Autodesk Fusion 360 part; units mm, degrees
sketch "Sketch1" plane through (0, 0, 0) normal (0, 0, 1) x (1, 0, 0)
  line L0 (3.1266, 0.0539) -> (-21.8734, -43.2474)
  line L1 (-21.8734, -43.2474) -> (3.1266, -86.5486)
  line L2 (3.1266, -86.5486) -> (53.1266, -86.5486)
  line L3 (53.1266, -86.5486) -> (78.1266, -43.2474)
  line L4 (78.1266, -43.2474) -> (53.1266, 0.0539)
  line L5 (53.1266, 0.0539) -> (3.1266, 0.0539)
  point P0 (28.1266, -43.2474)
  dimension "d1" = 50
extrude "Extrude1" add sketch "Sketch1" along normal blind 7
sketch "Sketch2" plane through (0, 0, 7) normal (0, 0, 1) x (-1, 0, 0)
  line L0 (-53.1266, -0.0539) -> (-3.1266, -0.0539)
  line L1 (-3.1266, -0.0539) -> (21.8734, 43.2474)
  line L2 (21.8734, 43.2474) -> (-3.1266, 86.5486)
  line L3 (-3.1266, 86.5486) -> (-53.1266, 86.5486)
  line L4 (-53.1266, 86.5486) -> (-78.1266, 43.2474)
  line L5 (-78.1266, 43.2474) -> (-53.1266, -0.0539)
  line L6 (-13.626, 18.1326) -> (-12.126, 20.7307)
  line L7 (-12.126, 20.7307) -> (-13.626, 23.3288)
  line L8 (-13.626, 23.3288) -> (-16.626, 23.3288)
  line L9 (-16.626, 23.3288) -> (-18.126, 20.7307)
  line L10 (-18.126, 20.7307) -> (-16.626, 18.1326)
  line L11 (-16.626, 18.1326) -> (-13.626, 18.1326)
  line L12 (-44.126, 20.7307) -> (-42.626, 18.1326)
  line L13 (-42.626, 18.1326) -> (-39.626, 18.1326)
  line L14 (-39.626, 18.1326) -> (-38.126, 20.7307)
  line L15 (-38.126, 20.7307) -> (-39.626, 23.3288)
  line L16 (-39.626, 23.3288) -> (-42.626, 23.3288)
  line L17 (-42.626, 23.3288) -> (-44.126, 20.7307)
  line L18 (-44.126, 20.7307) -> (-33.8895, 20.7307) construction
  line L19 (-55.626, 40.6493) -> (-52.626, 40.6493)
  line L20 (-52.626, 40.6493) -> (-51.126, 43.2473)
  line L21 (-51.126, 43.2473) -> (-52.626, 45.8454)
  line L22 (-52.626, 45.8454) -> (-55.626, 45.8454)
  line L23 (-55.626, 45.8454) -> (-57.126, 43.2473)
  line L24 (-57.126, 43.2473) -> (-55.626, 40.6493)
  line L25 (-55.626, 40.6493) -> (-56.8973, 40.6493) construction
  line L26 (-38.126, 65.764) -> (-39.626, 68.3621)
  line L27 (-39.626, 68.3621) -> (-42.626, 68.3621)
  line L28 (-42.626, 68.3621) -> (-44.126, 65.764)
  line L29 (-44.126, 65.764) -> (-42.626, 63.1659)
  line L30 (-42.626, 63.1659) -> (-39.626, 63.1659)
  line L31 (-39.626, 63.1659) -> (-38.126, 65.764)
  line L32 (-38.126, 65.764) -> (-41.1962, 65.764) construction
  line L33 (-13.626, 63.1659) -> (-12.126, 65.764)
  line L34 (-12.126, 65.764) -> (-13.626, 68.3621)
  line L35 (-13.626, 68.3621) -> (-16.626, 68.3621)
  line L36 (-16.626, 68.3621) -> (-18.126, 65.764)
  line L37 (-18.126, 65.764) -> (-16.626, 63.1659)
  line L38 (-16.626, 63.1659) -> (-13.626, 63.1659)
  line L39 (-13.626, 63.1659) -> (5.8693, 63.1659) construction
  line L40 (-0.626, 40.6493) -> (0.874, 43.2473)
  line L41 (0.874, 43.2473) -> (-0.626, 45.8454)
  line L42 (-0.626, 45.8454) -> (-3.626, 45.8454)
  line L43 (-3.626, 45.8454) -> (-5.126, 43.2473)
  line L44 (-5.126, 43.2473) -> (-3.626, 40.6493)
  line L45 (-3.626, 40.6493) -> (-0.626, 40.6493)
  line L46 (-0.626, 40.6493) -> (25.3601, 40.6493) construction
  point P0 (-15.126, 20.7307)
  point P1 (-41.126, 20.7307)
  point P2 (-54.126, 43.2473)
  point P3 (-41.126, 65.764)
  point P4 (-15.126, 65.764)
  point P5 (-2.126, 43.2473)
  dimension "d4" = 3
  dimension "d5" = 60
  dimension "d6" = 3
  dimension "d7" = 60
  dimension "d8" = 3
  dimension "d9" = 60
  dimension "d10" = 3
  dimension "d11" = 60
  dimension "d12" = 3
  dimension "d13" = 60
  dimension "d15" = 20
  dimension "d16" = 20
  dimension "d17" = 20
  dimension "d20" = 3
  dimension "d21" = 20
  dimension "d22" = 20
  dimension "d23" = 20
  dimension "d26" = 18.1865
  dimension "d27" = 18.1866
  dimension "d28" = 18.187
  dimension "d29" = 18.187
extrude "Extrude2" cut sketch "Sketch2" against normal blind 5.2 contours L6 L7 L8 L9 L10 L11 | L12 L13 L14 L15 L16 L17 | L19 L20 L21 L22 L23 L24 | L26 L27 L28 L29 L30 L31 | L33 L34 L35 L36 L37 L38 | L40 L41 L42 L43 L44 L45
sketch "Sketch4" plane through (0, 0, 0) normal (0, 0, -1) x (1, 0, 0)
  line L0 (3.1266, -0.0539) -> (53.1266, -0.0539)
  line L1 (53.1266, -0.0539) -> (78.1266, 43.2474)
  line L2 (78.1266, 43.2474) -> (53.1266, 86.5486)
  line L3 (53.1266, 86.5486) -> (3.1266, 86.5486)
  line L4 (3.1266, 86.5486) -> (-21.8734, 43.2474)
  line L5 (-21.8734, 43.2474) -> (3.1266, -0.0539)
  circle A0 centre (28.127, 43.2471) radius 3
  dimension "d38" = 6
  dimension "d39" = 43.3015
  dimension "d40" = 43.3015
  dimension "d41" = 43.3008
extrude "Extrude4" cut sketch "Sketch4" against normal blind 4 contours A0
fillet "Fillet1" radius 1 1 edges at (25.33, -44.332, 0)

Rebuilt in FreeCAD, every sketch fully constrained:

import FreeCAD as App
import Part
import Sketcher

V = App.Vector
Q = App.Units.Quantity


def edges_at(feature, points):
    """Names of the edges that pass closest to the given points."""
    edges = feature.Shape.Edges
    near = lambda p: min(range(len(edges)), key=lambda i: edges[i].distToShape(Part.Vertex(*p))[0])
    return sorted({f"Edge{near(p) + 1}" for p in points})

doc = App.newDocument("Part")
params = doc.addObject("Spreadsheet::Sheet", "Params")
for row, (alias, value) in enumerate([
    ("sketch1_width", "50 mm"),
    ("sketch1_length", "50 mm"),
    ("pad1_length", "7 mm"),
    ("sketch2_width", "3 mm"),
    ("sketch2_length", "3 mm"),
    ("pocket1_length", "5.2 mm"),
    ("sketch3_diameter", "6 mm"),
    ("pocket2_length", "4 mm"),
    ("fillet_radius", "1 mm"),
], start=1):
    params.set(f"A{row}", alias)
    params.set(f"B{row}", "=" + value)
    params.setAlias(f"B{row}", alias)

body = doc.addObject("PartDesign::Body", "Body")

# Sketch on XY plane
sketch1 = doc.addObject("Sketcher::SketchObject", "Sketch")
body.addObject(sketch1)
sketch1.AttachmentSupport = (doc.XY_Plane, [""])
sketch1.MapMode = "FlatFace"
sketch1.addGeometry(Part.LineSegment(V(53, 0, 0), V(3, 0, 0)), False)
sketch1.addGeometry(Part.LineSegment(V(3, 0, 0), V(-22, -43, 0)), False)
sketch1.addGeometry(Part.LineSegment(V(-22, -43, 0), V(3, -87, 0)), False)
sketch1.addGeometry(Part.LineSegment(V(3, -87, 0), V(53, -87, 0)), False)
sketch1.addGeometry(Part.LineSegment(V(53, -87, 0), V(78, -43, 0)), False)
sketch1.addGeometry(Part.LineSegment(V(78, -43, 0), V(53, 0, 0)), False)
sketch1.addConstraint(Sketcher.Constraint("Coincident", 0, 2, 1, 1))
sketch1.addConstraint(Sketcher.Constraint("Coincident", 1, 2, 2, 1))
sketch1.addConstraint(Sketcher.Constraint("Coincident", 2, 2, 3, 1))
sketch1.addConstraint(Sketcher.Constraint("Coincident", 3, 2, 4, 1))
sketch1.addConstraint(Sketcher.Constraint("Coincident", 4, 2, 5, 1))
sketch1.addConstraint(Sketcher.Constraint("Coincident", 5, 2, 0, 1))
sketch1.addConstraint(Sketcher.Constraint("Horizontal", 0))
sketch1.addConstraint(Sketcher.Constraint("Horizontal", 3))
sketch1.addConstraint(Sketcher.Constraint("Parallel", 1, 4))
sketch1.addConstraint(Sketcher.Constraint("Parallel", 2, 5))
sketch1.addConstraint(Sketcher.Constraint("Horizontal", 1, 2, 4, 2))
sketch1.addConstraint(Sketcher.Constraint("Vertical", 0, 2, 2, 2))
sketch1.addConstraint(Sketcher.Constraint("Vertical", 3, 2, 5, 2))
sketch1.addConstraint(Sketcher.Constraint("DistanceX", 0, 2, 0, 1, Q("50 mm")))
sketch1.addConstraint(Sketcher.Constraint("Distance", 1, Q("50 mm")))
sketch1.addConstraint(Sketcher.Constraint("Angle", 1, Q("-120 deg")))
sketch1.addConstraint(Sketcher.Constraint("DistanceY", -1, 1, 0, 2, Q("0.054 mm")))
sketch1.addConstraint(Sketcher.Constraint("DistanceX", -1, 1, 0, 2, Q("3.1266 mm")))
sketch1.setExpression("Constraints[13]", "Params.sketch1_width")
sketch1.setExpression("Constraints[14]", "Params.sketch1_length")
pad1 = doc.addObject("PartDesign::Pad", "Pad")
body.addObject(pad1)
pad1.Profile = sketch1
pad1.setExpression("Length", "Params.pad1_length")

# Sketch on XY plane
sketch2 = doc.addObject("Sketcher::SketchObject", "Sketch001")
body.addObject(sketch2)
sketch2.AttachmentSupport = (doc.XY_Plane, [""])
sketch2.MapMode = "FlatFace"
sketch2.AttachmentOffset = App.Placement(V(0, 0, 7), App.Rotation())
sketch2.addGeometry(Part.LineSegment(V(16.6, -18.1, 0), V(13.6, -18.1, 0)), False)
sketch2.addGeometry(Part.LineSegment(V(13.6, -18.1, 0), V(12.1, -20.7, 0)), False)
sketch2.addGeometry(Part.LineSegment(V(12.1, -20.7, 0), V(13.6, -23.3, 0)), False)
sketch2.addGeometry(Part.LineSegment(V(13.6, -23.3, 0), V(16.6, -23.3, 0)), False)
sketch2.addGeometry(Part.LineSegment(V(16.6, -23.3, 0), V(18.1, -20.7, 0)), False)
sketch2.addGeometry(Part.LineSegment(V(18.1, -20.7, 0), V(16.6, -18.1, 0)), False)
sketch2.addGeometry(Part.LineSegment(V(42.6, -23.3, 0), V(44.1, -20.7, 0)), False)
sketch2.addGeometry(Part.LineSegment(V(44.1, -20.7, 0), V(42.6, -18.1, 0)), False)
sketch2.addGeometry(Part.LineSegment(V(42.6, -18.1, 0), V(39.6, -18.1, 0)), False)
sketch2.addGeometry(Part.LineSegment(V(39.6, -18.1, 0), V(38.1, -20.7, 0)), False)
sketch2.addGeometry(Part.LineSegment(V(38.1, -20.7, 0), V(39.6, -23.3, 0)), False)
sketch2.addGeometry(Part.LineSegment(V(39.6, -23.3, 0), V(42.6, -23.3, 0)), False)
sketch2.addGeometry(Part.LineSegment(V(57.1, -43.2, 0), V(55.6, -40.6, 0)), False)
sketch2.addGeometry(Part.LineSegment(V(55.6, -40.6, 0), V(52.6, -40.6, 0)), False)
sketch2.addGeometry(Part.LineSegment(V(52.6, -40.6, 0), V(51.1, -43.2, 0)), False)
sketch2.addGeometry(Part.LineSegment(V(51.1, -43.2, 0), V(52.6, -45.8, 0)), False)
sketch2.addGeometry(Part.LineSegment(V(52.6, -45.8, 0), V(55.6, -45.8, 0)), False)
sketch2.addGeometry(Part.LineSegment(V(55.6, -45.8, 0), V(57.1, -43.2, 0)), False)
sketch2.addGeometry(Part.LineSegment(V(39.6, -63.2, 0), V(38.1, -65.8, 0)), False)
sketch2.addGeometry(Part.LineSegment(V(38.1, -65.8, 0), V(39.6, -68.4, 0)), False)
sketch2.addGeometry(Part.LineSegment(V(39.6, -68.4, 0), V(42.6, -68.4, 0)), False)
sketch2.addGeometry(Part.LineSegment(V(42.6, -68.4, 0), V(44.1, -65.8, 0)), False)
sketch2.addGeometry(Part.LineSegment(V(44.1, -65.8, 0), V(42.6, -63.2, 0)), False)
sketch2.addGeometry(Part.LineSegment(V(42.6, -63.2, 0), V(39.6, -63.2, 0)), False)
sketch2.addGeometry(Part.LineSegment(V(16.6, -63.2, 0), V(13.6, -63.2, 0)), False)
sketch2.addGeometry(Part.LineSegment(V(13.6, -63.2, 0), V(12.1, -65.8, 0)), False)
sketch2.addGeometry(Part.LineSegment(V(12.1, -65.8, 0), V(13.6, -68.4, 0)), False)
sketch2.addGeometry(Part.LineSegment(V(13.6, -68.4, 0), V(16.6, -68.4, 0)), False)
sketch2.addGeometry(Part.LineSegment(V(16.6, -68.4, 0), V(18.1, -65.8, 0)), False)
sketch2.addGeometry(Part.LineSegment(V(18.1, -65.8, 0), V(16.6, -63.2, 0)), False)
sketch2.addGeometry(Part.LineSegment(V(3.6, -40.6, 0), V(0.6, -40.6, 0)), False)
sketch2.addGeometry(Part.LineSegment(V(0.6, -40.6, 0), V(-0.9, -43.2, 0)), False)
sketch2.addGeometry(Part.LineSegment(V(-0.9, -43.2, 0), V(0.6, -45.8, 0)), False)
sketch2.addGeometry(Part.LineSegment(V(0.6, -45.8, 0), V(3.6, -45.8, 0)), False)
sketch2.addGeometry(Part.LineSegment(V(3.6, -45.8, 0), V(5.1, -43.2, 0)), False)
sketch2.addGeometry(Part.LineSegment(V(5.1, -43.2, 0), V(3.6, -40.6, 0)), False)
sketch2.addConstraint(Sketcher.Constraint("Coincident", 0, 2, 1, 1))
sketch2.addConstraint(Sketcher.Constraint("Coincident", 1, 2, 2, 1))
sketch2.addConstraint(Sketcher.Constraint("Coincident", 2, 2, 3, 1))
sketch2.addConstraint(Sketcher.Constraint("Coincident", 3, 2, 4, 1))
sketch2.addConstraint(Sketcher.Constraint("Coincident", 4, 2, 5, 1))
sketch2.addConstraint(Sketcher.Constraint("Coincident", 5, 2, 0, 1))
sketch2.addConstraint(Sketcher.Constraint("Coincident", 6, 2, 7, 1))
sketch2.addConstraint(Sketcher.Constraint("Coincident", 7, 2, 8, 1))
sketch2.addConstraint(Sketcher.Constraint("Coincident", 8, 2, 9, 1))
sketch2.addConstraint(Sketcher.Constraint("Coincident", 9, 2, 10, 1))
sketch2.addConstraint(Sketcher.Constraint("Coincident", 10, 2, 11, 1))
sketch2.addConstraint(Sketcher.Constraint("Coincident", 11, 2, 6, 1))
sketch2.addConstraint(Sketcher.Constraint("Coincident", 12, 2, 13, 1))
sketch2.addConstraint(Sketcher.Constraint("Coincident", 13, 2, 14, 1))
sketch2.addConstraint(Sketcher.Constraint("Coincident", 14, 2, 15, 1))
sketch2.addConstraint(Sketcher.Constraint("Coincident", 15, 2, 16, 1))
sketch2.addConstraint(Sketcher.Constraint("Coincident", 16, 2, 17, 1))
sketch2.addConstraint(Sketcher.Constraint("Coincident", 17, 2, 12, 1))
sketch2.addConstraint(Sketcher.Constraint("Coincident", 18, 2, 19, 1))
sketch2.addConstraint(Sketcher.Constraint("Coincident", 19, 2, 20, 1))
sketch2.addConstraint(Sketcher.Constraint("Coincident", 20, 2, 21, 1))
sketch2.addConstraint(Sketcher.Constraint("Coincident", 21, 2, 22, 1))
sketch2.addConstraint(Sketcher.Constraint("Coincident", 22, 2, 23, 1))
sketch2.addConstraint(Sketcher.Constraint("Coincident", 23, 2, 18, 1))
sketch2.addConstraint(Sketcher.Constraint("Coincident", 24, 2, 25, 1))
sketch2.addConstraint(Sketcher.Constraint("Coincident", 25, 2, 26, 1))
sketch2.addConstraint(Sketcher.Constraint("Coincident", 26, 2, 27, 1))
sketch2.addConstraint(Sketcher.Constraint("Coincident", 27, 2, 28, 1))
sketch2.addConstraint(Sketcher.Constraint("Coincident", 28, 2, 29, 1))
sketch2.addConstraint(Sketcher.Constraint("Coincident", 29, 2, 24, 1))
sketch2.addConstraint(Sketcher.Constraint("Coincident", 30, 2, 31, 1))
sketch2.addConstraint(Sketcher.Constraint("Coincident", 31, 2, 32, 1))
sketch2.addConstraint(Sketcher.Constraint("Coincident", 32, 2, 33, 1))
sketch2.addConstraint(Sketcher.Constraint("Coincident", 33, 2, 34, 1))
sketch2.addConstraint(Sketcher.Constraint("Coincident", 34, 2, 35, 1))
sketch2.addConstraint(Sketcher.Constraint("Coincident", 35, 2, 30, 1))
sketch2.addConstraint(Sketcher.Constraint("Horizontal", 0))
sketch2.addConstraint(Sketcher.Constraint("Horizontal", 3))
sketch2.addConstraint(Sketcher.Constraint("Horizontal", 8))
sketch2.addConstraint(Sketcher.Constraint("Horizontal", 11))
sketch2.addConstraint(Sketcher.Constraint("Horizontal", 13))
sketch2.addConstraint(Sketcher.Constraint("Horizontal", 16))
sketch2.addConstraint(Sketcher.Constraint("Horizontal", 20))
sketch2.addConstraint(Sketcher.Constraint("Horizontal", 23))
sketch2.addConstraint(Sketcher.Constraint("Horizontal", 24))
sketch2.addConstraint(Sketcher.Constraint("Horizontal", 27))
sketch2.addConstraint(Sketcher.Constraint("Horizontal", 30))
sketch2.addConstraint(Sketcher.Constraint("Horizontal", 33))
sketch2.addConstraint(Sketcher.Constraint("Parallel", 1, 4))
sketch2.addConstraint(Sketcher.Constraint("Parallel", 2, 5))
sketch2.addConstraint(Sketcher.Constraint("Parallel", 4, 6))
sketch2.addConstraint(Sketcher.Constraint("Parallel", 5, 7))
sketch2.addConstraint(Sketcher.Constraint("Parallel", 6, 9))
sketch2.addConstraint(Sketcher.Constraint("Parallel", 7, 10))
sketch2.addConstraint(Sketcher.Constraint("Parallel", 10, 12))
sketch2.addConstraint(Sketcher.Constraint("Parallel", 9, 14))
sketch2.addConstraint(Sketcher.Constraint("Parallel", 12, 15))
sketch2.addConstraint(Sketcher.Constraint("Parallel", 14, 17))
sketch2.addConstraint(Sketcher.Constraint("Parallel", 17, 18))
sketch2.addConstraint(Sketcher.Constraint("Parallel", 15, 19))
sketch2.addConstraint(Sketcher.Constraint("Parallel", 18, 21))
sketch2.addConstraint(Sketcher.Constraint("Parallel", 19, 22))
sketch2.addConstraint(Sketcher.Constraint("Parallel", 21, 25))
sketch2.addConstraint(Sketcher.Constraint("Parallel", 22, 26))
sketch2.addConstraint(Sketcher.Constraint("Parallel", 25, 28))
sketch2.addConstraint(Sketcher.Constraint("Parallel", 26, 29))
sketch2.addConstraint(Sketcher.Constraint("Parallel", 28, 31))
sketch2.addConstraint(Sketcher.Constraint("Parallel", 29, 32))
sketch2.addConstraint(Sketcher.Constraint("Parallel", 31, 34))
sketch2.addConstraint(Sketcher.Constraint("Parallel", 32, 35))
sketch2.addConstraint(Sketcher.Constraint("Horizontal", 1, 2, 4, 2))
sketch2.addConstraint(Sketcher.Constraint("Horizontal", 4, 2, 6, 2))
sketch2.addConstraint(Sketcher.Constraint("Horizontal", 5, 2, 7, 2))
sketch2.addConstraint(Sketcher.Constraint("Horizontal", 6, 2, 9, 2))
sketch2.addConstraint(Sketcher.Constraint("Horizontal", 3, 2, 10, 2))
sketch2.addConstraint(Sketcher.Constraint("Horizontal", 14, 2, 17, 2))
sketch2.addConstraint(Sketcher.Constraint("Horizontal", 18, 2, 21, 2))
sketch2.addConstraint(Sketcher.Constraint("Horizontal", 23, 2, 24, 2))
sketch2.addConstraint(Sketcher.Constraint("Horizontal", 21, 2, 25, 2))
sketch2.addConstraint(Sketcher.Constraint("Horizontal", 20, 2, 26, 2))
sketch2.addConstraint(Sketcher.Constraint("Horizontal", 25, 2, 28, 2))
sketch2.addConstraint(Sketcher.Constraint("Horizontal", 13, 2, 30, 2))
sketch2.addConstraint(Sketcher.Constraint("Horizontal", 17, 2, 31, 2))
sketch2.addConstraint(Sketcher.Constraint("Horizontal", 16, 2, 32, 2))
sketch2.addConstraint(Sketcher.Constraint("Horizontal", 31, 2, 34, 2))
sketch2.addConstraint(Sketcher.Constraint("Vertical", 0, 2, 2, 2))
sketch2.addConstraint(Sketcher.Constraint("Vertical", 3, 2, 5, 2))
sketch2.addConstraint(Sketcher.Constraint("Vertical", 13, 2, 15, 2))
sketch2.addConstraint(Sketcher.Constraint("Vertical", 9, 2, 18, 2))
sketch2.addConstraint(Sketcher.Constraint("Vertical", 10, 2, 19, 2))
sketch2.addConstraint(Sketcher.Constraint("Vertical", 11, 2, 20, 2))
sketch2.addConstraint(Sketcher.Constraint("Vertical", 20, 2, 22, 2))
sketch2.addConstraint(Sketcher.Constraint("Vertical", 2, 2, 24, 2))
sketch2.addConstraint(Sketcher.Constraint("Vertical", 5, 2, 27, 2))
sketch2.addConstraint(Sketcher.Constraint("Equal", 3, 8))
sketch2.addConstraint(Sketcher.Constraint("Equal", 11, 13))
sketch2.addConstraint(Sketcher.Constraint("Equal", 27, 30))
sketch2.addConstraint(Sketcher.Constraint("Equal", 10, 12))
sketch2.addConstraint(Sketcher.Constraint("DistanceX", 0, 2, 0, 1, Q("3 mm")))
sketch2.addConstraint(Sketcher.Constraint("Angle", 2, Q("-60.0002 deg")))
sketch2.addConstraint(Sketcher.Constraint("Distance", 1, Q("3 mm")))
sketch2.addConstraint(Sketcher.Constraint("DistanceX", 4, 2, 9, 2, Q("20 mm")))
sketch2.addConstraint(Sketcher.Constraint("DistanceX", 11, 2, 12, 2, Q("13 mm")))
sketch2.addConstraint(Sketcher.Constraint("DistanceX", 30, 2, 2, 2, Q("13 mm")))
sketch2.addConstraint(Sketcher.Constraint("DistanceX", -1, 1, 0, 2, Q("13.626 mm")))
sketch2.addConstraint(Sketcher.Constraint("DistanceY", 18, 2, -1, 1, Q("65.764 mm")))
sketch2.addConstraint(Sketcher.Constraint("DistanceY", 0, 2, -1, 1, Q("18.1326 mm")))
sketch2.addConstraint(Sketcher.Constraint("DistanceY", 12, 2, -1, 1, Q("40.6493 mm")))
sketch2.setExpression("Constraints[98]", "Params.sketch2_width")
sketch2.setExpression("Constraints[100]", "Params.sketch2_length")
pocket1 = doc.addObject("PartDesign::Pocket", "Pocket")
body.addObject(pocket1)
pocket1.Profile = sketch2
pocket1.setExpression("Length", "Params.pocket1_length")

# Sketch on XY plane
sketch3 = doc.addObject("Sketcher::SketchObject", "Sketch002")
body.addObject(sketch3)
sketch3.AttachmentSupport = (doc.XY_Plane, [""])
sketch3.MapMode = "FlatFace"
sketch3.addGeometry(Part.Circle(V(28.1, -43.2, 0), V(0, 0, 1), 3), False)
sketch3.addConstraint(Sketcher.Constraint("Diameter", 0, Q("6 mm")))
sketch3.addConstraint(Sketcher.Constraint("DistanceX", -1, 1, 0, 3, Q("28.127 mm")))
sketch3.addConstraint(Sketcher.Constraint("DistanceY", 0, 3, -1, 1, Q("43.247 mm")))
sketch3.setExpression("Constraints[0]", "Params.sketch3_diameter")
pocket2 = doc.addObject("PartDesign::Pocket", "Pocket001")
body.addObject(pocket2)
pocket2.Profile = sketch3
pocket2.setExpression("Length", "Params.pocket2_length")
pocket2.Reversed = True
doc.recompute()

fillet = doc.addObject("PartDesign::Fillet", "Fillet")
body.addObject(fillet)
fillet.Base = (pocket2, edges_at(pocket2, [(25.33, -44.332, 0)]))
fillet.setExpression("Radius", "Params.fillet_radius")

doc.recompute()
